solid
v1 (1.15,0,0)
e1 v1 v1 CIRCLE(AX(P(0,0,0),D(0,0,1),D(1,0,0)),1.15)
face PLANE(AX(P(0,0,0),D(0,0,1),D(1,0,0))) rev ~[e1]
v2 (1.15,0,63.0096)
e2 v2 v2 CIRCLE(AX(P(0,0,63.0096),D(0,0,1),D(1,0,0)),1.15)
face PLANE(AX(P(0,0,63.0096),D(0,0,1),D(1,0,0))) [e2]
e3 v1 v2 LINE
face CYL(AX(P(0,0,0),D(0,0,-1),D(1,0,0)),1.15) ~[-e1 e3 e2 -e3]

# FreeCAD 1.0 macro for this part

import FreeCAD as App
import Part
import Sketcher

doc = App.newDocument("Part")
body = doc.addObject("PartDesign::Body", "Body")

# Sketch on XY plane
sketch1 = doc.addObject("Sketcher::SketchObject", "Sketch")
body.addObject(sketch1)
sketch1.AttachmentSupport = (doc.XY_Plane, [""])
sketch1.MapMode = "FlatFace"
sketch1.addGeometry(Part.Circle(App.Vector(0, 0, 0), App.Vector(0, 0, 1), 1.1), False)
sketch1.addConstraint([
    Sketcher.Constraint("Coincident", 0, 3, -1, 1),
    Sketcher.Constraint("Diameter", 0, 2.3),
])
pad1 = doc.addObject("PartDesign::Pad", "Pad")
body.addObject(pad1)
pad1.Profile = sketch1
pad1.Length = 63.0096

doc.recompute()
